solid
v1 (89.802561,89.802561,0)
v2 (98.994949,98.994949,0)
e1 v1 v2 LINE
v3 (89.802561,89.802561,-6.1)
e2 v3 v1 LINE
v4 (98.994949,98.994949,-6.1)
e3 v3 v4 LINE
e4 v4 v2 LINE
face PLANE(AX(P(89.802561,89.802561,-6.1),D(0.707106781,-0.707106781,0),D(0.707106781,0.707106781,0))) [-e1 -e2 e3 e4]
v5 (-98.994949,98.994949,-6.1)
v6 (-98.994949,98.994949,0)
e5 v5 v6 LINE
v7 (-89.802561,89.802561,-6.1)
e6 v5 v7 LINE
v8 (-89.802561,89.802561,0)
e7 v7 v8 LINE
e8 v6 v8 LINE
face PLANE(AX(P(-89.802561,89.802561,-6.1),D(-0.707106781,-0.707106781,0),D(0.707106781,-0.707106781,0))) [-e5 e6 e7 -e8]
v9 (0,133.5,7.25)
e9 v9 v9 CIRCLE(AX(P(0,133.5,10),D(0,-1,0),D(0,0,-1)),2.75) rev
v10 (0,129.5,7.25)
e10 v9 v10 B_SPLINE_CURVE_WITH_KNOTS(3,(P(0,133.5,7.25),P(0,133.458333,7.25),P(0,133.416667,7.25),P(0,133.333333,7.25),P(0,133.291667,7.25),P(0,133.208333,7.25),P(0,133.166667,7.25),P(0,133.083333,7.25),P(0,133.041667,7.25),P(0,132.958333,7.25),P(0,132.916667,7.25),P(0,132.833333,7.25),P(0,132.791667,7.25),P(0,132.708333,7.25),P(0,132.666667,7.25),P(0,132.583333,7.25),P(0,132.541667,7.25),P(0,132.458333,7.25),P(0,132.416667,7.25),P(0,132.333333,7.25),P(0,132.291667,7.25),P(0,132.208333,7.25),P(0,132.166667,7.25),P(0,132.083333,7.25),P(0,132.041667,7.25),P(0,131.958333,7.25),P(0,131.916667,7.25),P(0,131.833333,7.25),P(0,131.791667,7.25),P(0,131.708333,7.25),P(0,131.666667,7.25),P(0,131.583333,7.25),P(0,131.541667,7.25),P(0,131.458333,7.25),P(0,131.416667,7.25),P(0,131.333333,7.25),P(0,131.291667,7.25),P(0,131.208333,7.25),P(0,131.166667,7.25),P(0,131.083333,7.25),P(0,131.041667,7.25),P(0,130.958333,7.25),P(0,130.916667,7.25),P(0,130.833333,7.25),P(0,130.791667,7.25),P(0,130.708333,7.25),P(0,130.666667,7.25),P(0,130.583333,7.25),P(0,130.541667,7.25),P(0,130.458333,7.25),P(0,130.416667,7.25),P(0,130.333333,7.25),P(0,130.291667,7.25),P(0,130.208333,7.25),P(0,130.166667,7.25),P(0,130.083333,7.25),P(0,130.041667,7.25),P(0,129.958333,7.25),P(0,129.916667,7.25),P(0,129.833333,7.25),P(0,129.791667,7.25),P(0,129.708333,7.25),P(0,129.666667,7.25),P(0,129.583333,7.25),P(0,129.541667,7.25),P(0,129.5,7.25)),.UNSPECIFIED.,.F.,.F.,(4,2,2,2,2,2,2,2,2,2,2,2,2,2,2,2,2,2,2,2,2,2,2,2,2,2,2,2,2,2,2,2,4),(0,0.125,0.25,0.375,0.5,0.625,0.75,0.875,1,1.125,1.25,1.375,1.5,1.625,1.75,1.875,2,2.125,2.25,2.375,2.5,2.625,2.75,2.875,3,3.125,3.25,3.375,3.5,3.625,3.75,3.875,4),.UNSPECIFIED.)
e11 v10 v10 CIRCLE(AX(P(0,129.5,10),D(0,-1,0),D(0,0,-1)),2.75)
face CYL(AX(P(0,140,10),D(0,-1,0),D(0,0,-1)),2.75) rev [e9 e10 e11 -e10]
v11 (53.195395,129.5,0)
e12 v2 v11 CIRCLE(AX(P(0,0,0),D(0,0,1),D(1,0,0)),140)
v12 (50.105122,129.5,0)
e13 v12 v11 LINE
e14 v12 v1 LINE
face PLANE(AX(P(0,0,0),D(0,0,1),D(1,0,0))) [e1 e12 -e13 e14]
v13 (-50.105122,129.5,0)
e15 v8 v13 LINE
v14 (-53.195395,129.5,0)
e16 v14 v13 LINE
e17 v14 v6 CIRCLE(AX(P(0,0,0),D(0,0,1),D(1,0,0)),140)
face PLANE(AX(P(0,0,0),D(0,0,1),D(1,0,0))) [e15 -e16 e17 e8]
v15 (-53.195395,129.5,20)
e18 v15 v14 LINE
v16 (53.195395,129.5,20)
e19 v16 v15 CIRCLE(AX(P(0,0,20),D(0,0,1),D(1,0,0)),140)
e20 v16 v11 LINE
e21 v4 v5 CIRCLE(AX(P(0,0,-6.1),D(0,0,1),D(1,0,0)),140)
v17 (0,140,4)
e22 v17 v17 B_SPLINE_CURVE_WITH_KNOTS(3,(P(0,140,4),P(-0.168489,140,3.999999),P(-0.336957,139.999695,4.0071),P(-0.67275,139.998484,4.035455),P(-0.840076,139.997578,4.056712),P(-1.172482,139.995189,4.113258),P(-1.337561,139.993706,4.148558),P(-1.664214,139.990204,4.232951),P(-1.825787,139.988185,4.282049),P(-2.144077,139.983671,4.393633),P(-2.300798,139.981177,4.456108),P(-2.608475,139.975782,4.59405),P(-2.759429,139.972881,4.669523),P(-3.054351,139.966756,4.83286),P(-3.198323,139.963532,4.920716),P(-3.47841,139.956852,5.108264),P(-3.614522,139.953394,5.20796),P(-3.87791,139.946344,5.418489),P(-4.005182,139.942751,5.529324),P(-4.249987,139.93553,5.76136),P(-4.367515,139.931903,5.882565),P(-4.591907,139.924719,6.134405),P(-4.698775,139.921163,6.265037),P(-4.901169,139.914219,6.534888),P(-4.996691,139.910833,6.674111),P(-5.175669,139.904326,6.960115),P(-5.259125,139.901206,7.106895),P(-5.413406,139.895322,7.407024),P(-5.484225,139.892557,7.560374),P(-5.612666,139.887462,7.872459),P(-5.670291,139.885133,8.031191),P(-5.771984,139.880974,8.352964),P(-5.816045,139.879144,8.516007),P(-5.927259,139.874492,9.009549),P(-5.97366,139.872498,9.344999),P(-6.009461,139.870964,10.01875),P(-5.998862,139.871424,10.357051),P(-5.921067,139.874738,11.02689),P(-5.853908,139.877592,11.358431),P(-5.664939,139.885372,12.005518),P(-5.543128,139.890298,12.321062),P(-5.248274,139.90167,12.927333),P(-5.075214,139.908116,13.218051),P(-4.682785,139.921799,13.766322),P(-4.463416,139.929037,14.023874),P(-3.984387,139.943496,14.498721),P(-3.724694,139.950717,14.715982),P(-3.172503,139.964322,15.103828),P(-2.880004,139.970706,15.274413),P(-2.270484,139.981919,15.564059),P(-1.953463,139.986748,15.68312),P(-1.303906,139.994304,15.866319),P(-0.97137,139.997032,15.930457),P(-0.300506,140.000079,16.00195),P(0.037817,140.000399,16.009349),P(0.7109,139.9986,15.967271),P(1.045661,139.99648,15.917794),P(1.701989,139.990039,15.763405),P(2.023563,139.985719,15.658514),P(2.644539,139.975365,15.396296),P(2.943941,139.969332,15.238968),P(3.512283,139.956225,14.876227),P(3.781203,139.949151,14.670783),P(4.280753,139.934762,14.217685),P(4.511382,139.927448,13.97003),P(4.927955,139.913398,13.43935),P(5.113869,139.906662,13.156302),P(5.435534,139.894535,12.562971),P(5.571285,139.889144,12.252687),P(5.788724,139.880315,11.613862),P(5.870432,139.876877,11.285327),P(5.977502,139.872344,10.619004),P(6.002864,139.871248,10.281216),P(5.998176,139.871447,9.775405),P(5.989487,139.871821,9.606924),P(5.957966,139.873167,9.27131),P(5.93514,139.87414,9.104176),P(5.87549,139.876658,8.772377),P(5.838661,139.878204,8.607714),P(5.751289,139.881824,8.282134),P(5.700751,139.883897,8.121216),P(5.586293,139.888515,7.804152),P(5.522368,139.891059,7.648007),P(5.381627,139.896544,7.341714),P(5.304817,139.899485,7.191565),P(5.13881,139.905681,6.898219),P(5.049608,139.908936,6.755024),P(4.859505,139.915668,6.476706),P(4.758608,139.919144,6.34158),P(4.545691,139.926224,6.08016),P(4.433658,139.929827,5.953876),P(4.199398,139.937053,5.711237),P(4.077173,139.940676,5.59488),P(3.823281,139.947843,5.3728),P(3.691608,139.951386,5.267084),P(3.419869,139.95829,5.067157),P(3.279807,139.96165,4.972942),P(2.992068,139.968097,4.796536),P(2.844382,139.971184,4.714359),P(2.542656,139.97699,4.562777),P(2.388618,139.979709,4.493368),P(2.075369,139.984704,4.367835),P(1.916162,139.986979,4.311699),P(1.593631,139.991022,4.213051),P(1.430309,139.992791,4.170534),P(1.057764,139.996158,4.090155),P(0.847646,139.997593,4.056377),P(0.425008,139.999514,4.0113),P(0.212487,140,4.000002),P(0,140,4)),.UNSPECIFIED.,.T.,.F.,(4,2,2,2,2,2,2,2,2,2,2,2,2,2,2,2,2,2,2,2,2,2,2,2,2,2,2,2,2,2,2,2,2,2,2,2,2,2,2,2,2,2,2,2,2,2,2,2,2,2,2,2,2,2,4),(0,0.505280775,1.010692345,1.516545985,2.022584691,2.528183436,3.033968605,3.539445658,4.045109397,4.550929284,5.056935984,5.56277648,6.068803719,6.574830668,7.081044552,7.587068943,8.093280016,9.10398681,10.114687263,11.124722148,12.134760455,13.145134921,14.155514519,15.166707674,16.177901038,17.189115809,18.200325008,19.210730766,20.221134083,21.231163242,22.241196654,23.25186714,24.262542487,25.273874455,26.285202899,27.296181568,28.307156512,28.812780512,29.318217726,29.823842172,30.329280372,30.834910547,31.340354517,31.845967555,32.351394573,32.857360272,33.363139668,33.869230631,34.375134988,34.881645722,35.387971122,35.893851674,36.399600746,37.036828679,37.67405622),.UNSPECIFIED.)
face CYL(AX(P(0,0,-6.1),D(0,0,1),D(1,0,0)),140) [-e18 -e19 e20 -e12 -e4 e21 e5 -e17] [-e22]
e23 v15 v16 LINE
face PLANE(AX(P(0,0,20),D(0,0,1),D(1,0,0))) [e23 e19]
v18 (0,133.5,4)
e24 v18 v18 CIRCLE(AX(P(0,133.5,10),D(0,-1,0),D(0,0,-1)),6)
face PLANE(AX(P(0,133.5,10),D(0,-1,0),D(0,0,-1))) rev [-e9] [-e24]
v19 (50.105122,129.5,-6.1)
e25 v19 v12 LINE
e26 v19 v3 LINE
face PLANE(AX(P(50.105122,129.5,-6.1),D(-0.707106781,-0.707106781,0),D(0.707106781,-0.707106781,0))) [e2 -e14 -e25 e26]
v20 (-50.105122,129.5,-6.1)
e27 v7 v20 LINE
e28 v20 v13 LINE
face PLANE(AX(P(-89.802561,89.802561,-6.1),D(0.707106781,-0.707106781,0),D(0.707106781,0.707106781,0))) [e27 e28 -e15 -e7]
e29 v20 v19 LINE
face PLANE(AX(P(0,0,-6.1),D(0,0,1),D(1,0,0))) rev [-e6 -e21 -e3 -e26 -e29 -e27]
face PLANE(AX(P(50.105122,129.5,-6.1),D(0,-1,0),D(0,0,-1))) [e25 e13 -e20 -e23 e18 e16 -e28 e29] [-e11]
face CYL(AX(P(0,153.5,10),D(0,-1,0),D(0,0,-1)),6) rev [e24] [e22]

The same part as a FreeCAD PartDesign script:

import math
import FreeCAD as App
import Part
import Sketcher
from FreeCAD import Vector
Q = App.Units.Quantity

doc = App.newDocument("Part")
body = doc.addObject("PartDesign::Body", "Body")

# Sketch on XY plane
sketch1 = body.newObject("Sketcher::SketchObject", "Sketch")
sketch1.AttachmentSupport = (doc.getObject("XY_Plane"), [""])
sketch1.MapMode = "FlatFace"
sketch1.addGeometry([
    Part.LineSegment(Vector(-90, 90, 0), Vector(-50, 130, 0)),  # 0
    Part.LineSegment(Vector(-50, 130, 0), Vector(50, 130, 0)),  # 1
    Part.LineSegment(Vector(50, 130, 0), Vector(90, 90, 0)),  # 2
    Part.LineSegment(Vector(90, 90, 0), Vector(99, 99, 0)),  # 3
    Part.ArcOfCircle(Part.Circle(Vector(0, 0, 0), Vector(0, 0, 1), 140), math.radians(45), math.radians(135)),  # 4
    Part.LineSegment(Vector(-99, 99, 0), Vector(-90, 90, 0)),  # 5
], False)
sketch1.addConstraint([
    Sketcher.Constraint("Coincident", 0, 2, 1, 1),
    Sketcher.Constraint("Coincident", 1, 2, 2, 1),
    Sketcher.Constraint("Coincident", 2, 2, 3, 1),
    Sketcher.Constraint("Coincident", 3, 2, 4, 1),
    Sketcher.Constraint("Coincident", 4, 2, 5, 1),
    Sketcher.Constraint("Coincident", 5, 2, 0, 1),
    Sketcher.Constraint("Horizontal", 1),
    Sketcher.Constraint("Coincident", 4, 3, -1, 1),
    Sketcher.Constraint("Symmetric", 2, 2, 5, 2, -2),
    Sketcher.Constraint("Perpendicular", 0, 2),
    Sketcher.Constraint("Perpendicular", 2, 3),
    Sketcher.Constraint("Perpendicular", 3, 5),
    Sketcher.Constraint("Equal", 0, 2),
    Sketcher.Constraint("Radius", 4, Q("140 mm")),
    Sketcher.Constraint("Distance", 3, Q("13 mm")),
    Sketcher.Constraint("DistanceY", -1, 1, 0, 2, Q("129.5 mm")),
    Sketcher.Constraint("DistanceX", 4, 2, 3, 2, Q("197.989899 mm")),
])
pad1 = body.newObject("PartDesign::Pad", "Pad")
pad1.Profile = sketch1
pad1.Length = 6.1
pad1.Reversed = True

# Sketch on XY plane
sketch2 = body.newObject("Sketcher::SketchObject", "Sketch001")
sketch2.AttachmentSupport = (doc.getObject("XY_Plane"), [""])
sketch2.MapMode = "FlatFace"
sketch2.AttachmentOffset = App.Placement(Vector(0, 0, 20), App.Rotation())
sketch2.addGeometry([
    Part.ArcOfCircle(Part.Circle(Vector(0, 0, 0), Vector(0, 0, 1), 140), math.radians(68), math.radians(112)),
    Part.LineSegment(Vector(-53, 130, 0), Vector(53, 130, 0)),
], False)
sketch2.addConstraint([
    Sketcher.Constraint("Coincident", 0, 1, 1, 2),
    Sketcher.Constraint("Coincident", 1, 1, 0, 2),
    Sketcher.Constraint("Horizontal", 1),
    Sketcher.Constraint("Coincident", 0, 3, -1, 1),
    Sketcher.Constraint("Radius", 0, Q("140 mm")),
    Sketcher.Constraint("DistanceY", -1, 1, 0, 1, Q("129.5 mm")),
])
pad2 = body.newObject("PartDesign::Pad", "Pad001")
pad2.Profile = sketch2
pad2.Length = 20
pad2.Reversed = True

# Sketch on XZ plane
sketch3 = body.newObject("Sketcher::SketchObject", "Sketch002")
sketch3.AttachmentSupport = (doc.getObject("XZ_Plane"), [""])
sketch3.MapMode = "FlatFace"
sketch3.AttachmentOffset = App.Placement(Vector(0, 0, -129.5), App.Rotation())
sketch3.addGeometry(Part.Circle(Vector(0, 10, 0), Vector(0, 0, 1), 2.8), False)
sketch3.addConstraint([
    Sketcher.Constraint("PointOnObject", 0, 3, -2),
    Sketcher.Constraint("Diameter", 0, Q("5.5 mm")),
    Sketcher.Constraint("DistanceY", -1, 1, 0, 3, Q("10 mm")),
])
pocket1 = body.newObject("PartDesign::Pocket", "Pocket")
pocket1.Profile = sketch3
pocket1.Type = "ThroughAll"

# Sketch on XZ plane
sketch4 = body.newObject("Sketcher::SketchObject", "Sketch003")
sketch4.AttachmentSupport = (doc.getObject("XZ_Plane"), [""])
sketch4.MapMode = "FlatFace"
sketch4.AttachmentOffset = App.Placement(Vector(0, 0, -133.5), App.Rotation())
sketch4.addGeometry(Part.Circle(Vector(0, 10, 0), Vector(0, 0, 1), 6), False)
sketch4.addConstraint([
    Sketcher.Constraint("PointOnObject", 0, 3, -2),
    Sketcher.Constraint("Diameter", 0, Q("12 mm")),
    Sketcher.Constraint("DistanceY", -1, 1, 0, 3, Q("10 mm")),
])
pocket2 = body.newObject("PartDesign::Pocket", "Pocket001")
pocket2.Profile = sketch4
pocket2.Length = 20

doc.recompute()
